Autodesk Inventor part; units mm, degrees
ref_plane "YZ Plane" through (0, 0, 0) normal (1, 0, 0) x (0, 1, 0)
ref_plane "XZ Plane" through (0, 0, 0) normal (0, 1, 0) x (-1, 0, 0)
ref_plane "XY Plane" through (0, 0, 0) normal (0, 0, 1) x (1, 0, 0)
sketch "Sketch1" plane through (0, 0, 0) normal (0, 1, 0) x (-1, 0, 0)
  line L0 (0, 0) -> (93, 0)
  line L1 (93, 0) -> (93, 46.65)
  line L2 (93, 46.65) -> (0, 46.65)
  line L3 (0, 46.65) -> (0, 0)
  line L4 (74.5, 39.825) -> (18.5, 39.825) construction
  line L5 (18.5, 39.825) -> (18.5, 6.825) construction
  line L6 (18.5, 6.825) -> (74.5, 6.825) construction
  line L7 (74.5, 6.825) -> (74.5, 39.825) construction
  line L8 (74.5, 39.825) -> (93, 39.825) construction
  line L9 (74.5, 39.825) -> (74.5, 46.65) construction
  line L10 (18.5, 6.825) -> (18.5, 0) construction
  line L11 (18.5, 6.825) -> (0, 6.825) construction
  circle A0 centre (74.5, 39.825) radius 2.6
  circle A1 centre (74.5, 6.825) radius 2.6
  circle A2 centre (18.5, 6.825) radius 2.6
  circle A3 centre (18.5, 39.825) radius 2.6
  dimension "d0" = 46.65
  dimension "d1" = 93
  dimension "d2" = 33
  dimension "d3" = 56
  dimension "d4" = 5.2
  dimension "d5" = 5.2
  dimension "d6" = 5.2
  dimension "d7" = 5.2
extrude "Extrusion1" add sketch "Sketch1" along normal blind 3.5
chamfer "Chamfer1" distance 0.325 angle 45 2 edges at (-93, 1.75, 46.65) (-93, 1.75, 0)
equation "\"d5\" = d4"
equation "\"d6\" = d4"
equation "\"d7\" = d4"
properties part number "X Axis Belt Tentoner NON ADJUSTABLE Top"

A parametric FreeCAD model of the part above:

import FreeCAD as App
import Part
import Sketcher

V = App.Vector


def edges_at(feature, points):
    """Names of the edges that pass closest to the given points."""
    edges = feature.Shape.Edges
    near = lambda p: min(range(len(edges)), key=lambda i: edges[i].distToShape(Part.Vertex(*p))[0])
    return sorted({f"Edge{near(p) + 1}" for p in points})


def add_polygon(sketch, points):
    """Adds a closed chain of lines whose ends are joined by coincident constraints."""
    first, n = sketch.GeometryCount, len(points)
    for a, b in zip(points, points[1:] + points[:1]):
        sketch.addGeometry(Part.LineSegment(App.Vector(*a, 0), App.Vector(*b, 0)), False)
    for i in range(n):
        sketch.addConstraint(Sketcher.Constraint("Coincident", first + i, 2, first + (i + 1) % n, 1))

doc = App.newDocument("Part")
body = doc.addObject("PartDesign::Body", "Body")

# Sketch on XZ plane
sketch1 = body.newObject("Sketcher::SketchObject", "Sketch")
sketch1.AttachmentSupport = (doc.getObject("XZ_Plane"), [""])
sketch1.MapMode = "FlatFace"
add_polygon(sketch1, [(0, 46.6), (0, 0), (-93, 0), (-93, 46.6)])  # lines 0-3
sketch1.addGeometry(Part.Circle(V(-18.5, 6.8, 0), V(0, 0, 1), 2.6), False)  # 4
sketch1.addGeometry(Part.Circle(V(-74.5, 6.8, 0), V(0, 0, 1), 2.6), False)  # 5
sketch1.addGeometry(Part.Circle(V(-18.5, 39.8, 0), V(0, 0, 1), 2.6), False)  # 6
sketch1.addGeometry(Part.Circle(V(-74.5, 39.8, 0), V(0, 0, 1), 2.6), False)  # 7
sketch1.addConstraint([
    Sketcher.Constraint("Vertical", 0),
    Sketcher.Constraint("Horizontal", 1),
    Sketcher.Constraint("Vertical", 2),
    Sketcher.Constraint("Horizontal", 3),
    Sketcher.Constraint("Coincident", 0, 2, -1, 1),
    Sketcher.Constraint("Equal", 4, 5),
    Sketcher.Constraint("Equal", 5, 6),
    Sketcher.Constraint("Equal", 6, 7),
    Sketcher.Constraint("Horizontal", 4, 3, 5, 3),
    Sketcher.Constraint("Horizontal", 6, 3, 7, 3),
    Sketcher.Constraint("Vertical", 4, 3, 6, 3),
    Sketcher.Constraint("Vertical", 5, 3, 7, 3),
    Sketcher.Constraint("Diameter", 4, 5.2),
    Sketcher.Constraint("DistanceX", 1, 2, 1, 1, 93.0),
    Sketcher.Constraint("DistanceX", 5, 3, 4, 3, 56.0),
    Sketcher.Constraint("DistanceY", 4, 3, 6, 3, 33.0),
    Sketcher.Constraint("DistanceY", 0, 2, 0, 1, 46.65),
    Sketcher.Constraint("DistanceX", 4, 3, -1, 1, 18.5),
    Sketcher.Constraint("DistanceY", -1, 1, 4, 3, 6.825),
])
pad1 = body.newObject("PartDesign::Pad", "Pad")
pad1.Profile = sketch1
pad1.Length = 3.5
pad1.Reversed = True
doc.recompute()

chamfer = body.newObject("PartDesign::Chamfer", "Chamfer")
chamfer.Base = (pad1, edges_at(pad1, [(-93, 1.75, 46.65), (-93, 1.75, 0)]))
chamfer.Size = 0.325

doc.recompute()
